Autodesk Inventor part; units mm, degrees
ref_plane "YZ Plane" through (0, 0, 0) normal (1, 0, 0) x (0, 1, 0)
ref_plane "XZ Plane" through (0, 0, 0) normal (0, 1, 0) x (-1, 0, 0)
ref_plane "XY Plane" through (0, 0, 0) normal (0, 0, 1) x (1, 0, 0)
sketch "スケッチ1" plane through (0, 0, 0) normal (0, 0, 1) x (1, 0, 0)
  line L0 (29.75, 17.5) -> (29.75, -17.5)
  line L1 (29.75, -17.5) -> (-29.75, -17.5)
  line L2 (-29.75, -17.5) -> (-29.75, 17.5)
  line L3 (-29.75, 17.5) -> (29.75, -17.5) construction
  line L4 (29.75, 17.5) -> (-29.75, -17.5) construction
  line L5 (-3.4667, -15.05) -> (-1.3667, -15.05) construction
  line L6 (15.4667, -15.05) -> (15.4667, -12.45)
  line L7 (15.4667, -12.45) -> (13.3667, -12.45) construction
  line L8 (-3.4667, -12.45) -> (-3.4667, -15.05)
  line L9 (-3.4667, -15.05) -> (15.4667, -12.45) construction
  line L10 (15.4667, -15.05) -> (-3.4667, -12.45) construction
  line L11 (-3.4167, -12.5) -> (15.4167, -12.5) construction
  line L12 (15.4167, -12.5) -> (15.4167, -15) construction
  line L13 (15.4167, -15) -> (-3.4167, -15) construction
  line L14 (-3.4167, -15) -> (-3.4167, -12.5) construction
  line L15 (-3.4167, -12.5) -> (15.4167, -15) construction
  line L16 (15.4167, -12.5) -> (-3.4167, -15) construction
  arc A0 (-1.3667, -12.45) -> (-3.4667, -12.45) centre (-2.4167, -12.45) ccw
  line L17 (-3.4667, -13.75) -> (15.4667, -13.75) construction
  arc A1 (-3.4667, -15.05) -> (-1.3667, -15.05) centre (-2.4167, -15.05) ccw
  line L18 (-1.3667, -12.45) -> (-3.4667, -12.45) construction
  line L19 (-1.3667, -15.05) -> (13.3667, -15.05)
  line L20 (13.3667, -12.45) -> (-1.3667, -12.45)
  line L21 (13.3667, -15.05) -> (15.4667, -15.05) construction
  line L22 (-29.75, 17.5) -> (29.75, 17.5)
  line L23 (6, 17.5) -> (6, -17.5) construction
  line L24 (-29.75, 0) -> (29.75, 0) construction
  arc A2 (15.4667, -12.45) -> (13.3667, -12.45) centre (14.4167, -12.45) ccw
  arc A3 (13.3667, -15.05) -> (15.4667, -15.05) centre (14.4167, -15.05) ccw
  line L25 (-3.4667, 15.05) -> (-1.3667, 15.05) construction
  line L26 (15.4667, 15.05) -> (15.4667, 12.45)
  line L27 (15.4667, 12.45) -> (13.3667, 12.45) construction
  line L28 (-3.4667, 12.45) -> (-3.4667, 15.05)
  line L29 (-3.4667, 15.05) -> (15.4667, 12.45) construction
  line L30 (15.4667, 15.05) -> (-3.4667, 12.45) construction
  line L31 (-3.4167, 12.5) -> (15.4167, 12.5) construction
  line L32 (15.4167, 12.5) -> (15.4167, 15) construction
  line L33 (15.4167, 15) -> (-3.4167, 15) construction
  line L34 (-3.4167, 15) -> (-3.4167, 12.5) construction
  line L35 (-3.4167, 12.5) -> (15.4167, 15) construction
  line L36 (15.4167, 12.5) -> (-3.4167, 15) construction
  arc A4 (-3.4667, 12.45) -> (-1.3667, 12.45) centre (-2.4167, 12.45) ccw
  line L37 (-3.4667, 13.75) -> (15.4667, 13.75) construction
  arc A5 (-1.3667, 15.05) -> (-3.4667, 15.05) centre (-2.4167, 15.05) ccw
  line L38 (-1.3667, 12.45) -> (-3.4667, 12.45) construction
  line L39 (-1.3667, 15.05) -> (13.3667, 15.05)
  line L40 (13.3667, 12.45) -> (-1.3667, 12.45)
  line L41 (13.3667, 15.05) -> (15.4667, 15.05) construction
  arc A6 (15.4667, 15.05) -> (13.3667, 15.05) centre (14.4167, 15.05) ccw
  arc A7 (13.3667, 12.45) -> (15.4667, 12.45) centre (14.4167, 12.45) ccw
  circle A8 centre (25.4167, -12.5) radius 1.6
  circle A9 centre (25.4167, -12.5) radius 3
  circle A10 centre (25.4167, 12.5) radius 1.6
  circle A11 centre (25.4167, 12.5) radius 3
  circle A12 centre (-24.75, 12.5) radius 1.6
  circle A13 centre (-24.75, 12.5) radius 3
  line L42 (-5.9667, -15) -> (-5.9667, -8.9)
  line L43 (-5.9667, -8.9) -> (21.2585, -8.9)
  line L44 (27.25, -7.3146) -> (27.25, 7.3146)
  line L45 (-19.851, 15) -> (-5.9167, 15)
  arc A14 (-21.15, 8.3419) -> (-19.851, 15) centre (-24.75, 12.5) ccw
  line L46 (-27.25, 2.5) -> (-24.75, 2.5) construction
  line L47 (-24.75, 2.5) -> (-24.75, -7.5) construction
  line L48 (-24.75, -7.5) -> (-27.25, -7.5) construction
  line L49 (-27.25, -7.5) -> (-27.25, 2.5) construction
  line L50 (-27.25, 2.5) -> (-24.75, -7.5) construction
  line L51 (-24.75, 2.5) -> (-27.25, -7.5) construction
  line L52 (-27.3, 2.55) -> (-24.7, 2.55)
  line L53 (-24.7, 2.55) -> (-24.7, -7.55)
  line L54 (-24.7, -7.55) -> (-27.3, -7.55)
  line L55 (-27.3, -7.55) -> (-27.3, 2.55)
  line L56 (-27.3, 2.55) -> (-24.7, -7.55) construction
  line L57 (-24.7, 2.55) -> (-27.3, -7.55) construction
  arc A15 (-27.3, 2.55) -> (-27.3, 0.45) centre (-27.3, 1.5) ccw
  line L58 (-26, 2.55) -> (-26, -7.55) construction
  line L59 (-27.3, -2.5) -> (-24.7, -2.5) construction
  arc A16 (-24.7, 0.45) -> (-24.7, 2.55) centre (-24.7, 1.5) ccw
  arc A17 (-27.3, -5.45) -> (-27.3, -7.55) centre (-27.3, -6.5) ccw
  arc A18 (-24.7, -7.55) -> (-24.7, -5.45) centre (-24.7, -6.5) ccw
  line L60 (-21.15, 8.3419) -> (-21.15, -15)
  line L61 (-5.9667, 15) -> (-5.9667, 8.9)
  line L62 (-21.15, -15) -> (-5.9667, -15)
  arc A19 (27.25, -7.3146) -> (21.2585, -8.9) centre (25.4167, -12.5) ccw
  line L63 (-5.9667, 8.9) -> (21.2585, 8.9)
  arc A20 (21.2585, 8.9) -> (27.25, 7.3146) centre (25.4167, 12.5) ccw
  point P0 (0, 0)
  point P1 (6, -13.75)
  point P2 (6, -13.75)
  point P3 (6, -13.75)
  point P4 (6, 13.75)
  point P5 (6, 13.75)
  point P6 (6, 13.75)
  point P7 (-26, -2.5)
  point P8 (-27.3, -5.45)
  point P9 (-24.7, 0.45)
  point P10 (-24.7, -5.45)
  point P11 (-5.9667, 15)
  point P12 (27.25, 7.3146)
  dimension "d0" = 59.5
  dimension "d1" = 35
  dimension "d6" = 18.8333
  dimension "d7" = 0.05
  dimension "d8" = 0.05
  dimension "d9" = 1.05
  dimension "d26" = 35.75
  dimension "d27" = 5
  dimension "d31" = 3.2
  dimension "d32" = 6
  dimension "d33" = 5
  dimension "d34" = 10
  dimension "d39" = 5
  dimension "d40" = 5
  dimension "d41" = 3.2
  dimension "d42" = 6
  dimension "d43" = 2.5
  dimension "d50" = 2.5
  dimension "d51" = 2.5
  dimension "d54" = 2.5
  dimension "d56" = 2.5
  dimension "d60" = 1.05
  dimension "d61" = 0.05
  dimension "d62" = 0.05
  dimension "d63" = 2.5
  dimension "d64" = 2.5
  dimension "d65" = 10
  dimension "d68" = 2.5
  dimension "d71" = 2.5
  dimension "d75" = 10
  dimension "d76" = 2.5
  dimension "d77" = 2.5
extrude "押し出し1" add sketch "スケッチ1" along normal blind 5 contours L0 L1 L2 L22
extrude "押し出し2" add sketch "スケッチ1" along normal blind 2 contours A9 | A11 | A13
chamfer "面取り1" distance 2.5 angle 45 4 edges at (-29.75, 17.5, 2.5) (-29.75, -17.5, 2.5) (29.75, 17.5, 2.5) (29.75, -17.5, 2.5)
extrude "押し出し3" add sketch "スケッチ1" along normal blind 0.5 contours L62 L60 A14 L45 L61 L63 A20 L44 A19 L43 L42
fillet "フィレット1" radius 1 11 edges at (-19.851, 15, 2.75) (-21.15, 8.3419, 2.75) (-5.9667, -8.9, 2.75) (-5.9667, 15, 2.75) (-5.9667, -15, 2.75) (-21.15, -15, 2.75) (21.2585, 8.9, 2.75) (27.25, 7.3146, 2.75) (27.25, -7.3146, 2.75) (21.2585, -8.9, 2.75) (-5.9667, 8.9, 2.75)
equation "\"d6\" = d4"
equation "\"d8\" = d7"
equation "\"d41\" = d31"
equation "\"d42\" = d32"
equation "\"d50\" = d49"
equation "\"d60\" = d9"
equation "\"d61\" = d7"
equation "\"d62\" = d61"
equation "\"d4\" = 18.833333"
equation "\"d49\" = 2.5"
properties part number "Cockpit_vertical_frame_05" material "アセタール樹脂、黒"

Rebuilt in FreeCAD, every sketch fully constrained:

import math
import FreeCAD as App
import Part
import Sketcher

V = App.Vector


def edges_at(feature, points):
    """Names of the edges that pass closest to the given points."""
    edges = feature.Shape.Edges
    near = lambda p: min(range(len(edges)), key=lambda i: edges[i].distToShape(Part.Vertex(*p))[0])
    return sorted({f"Edge{near(p) + 1}" for p in points})


def add_polygon(sketch, points):
    """Adds a closed chain of lines whose ends are joined by coincident constraints."""
    first, n = sketch.GeometryCount, len(points)
    for a, b in zip(points, points[1:] + points[:1]):
        sketch.addGeometry(Part.LineSegment(App.Vector(*a, 0), App.Vector(*b, 0)), False)
    for i in range(n):
        sketch.addConstraint(Sketcher.Constraint("Coincident", first + i, 2, first + (i + 1) % n, 1))

doc = App.newDocument("Part")
body = doc.addObject("PartDesign::Body", "Body")

# Sketch on XY plane
sketch1 = body.newObject("Sketcher::SketchObject", "Sketch")
sketch1.AttachmentSupport = (doc.getObject("XY_Plane"), [""])
sketch1.MapMode = "FlatFace"
add_polygon(sketch1, [(29.75, -17.5), (29.75, 17.5), (-29.75, 17.5), (-29.75, -17.5)])  # lines 0-3
sketch1.addGeometry(Part.ArcOfCircle(Part.Circle(V(-27.3, 1.5, 0), V(0, 0, 1), 1.05), math.radians(90), math.radians(270)), False)  # 4
sketch1.addGeometry(Part.LineSegment(V(-27.3, 2.55, 0), V(-24.7, 2.55, 0)), False)  # 5
sketch1.addGeometry(Part.ArcOfCircle(Part.Circle(V(-24.7, 1.5, 0), V(0, 0, 1), 1.05), math.radians(-90), math.radians(90)), False)  # 6
sketch1.addGeometry(Part.LineSegment(V(-24.7, 0.45, 0), V(-24.7, -5.45, 0)), False)  # 7
sketch1.addGeometry(Part.ArcOfCircle(Part.Circle(V(-24.7, -6.5, 0), V(0, 0, 1), 1.05), math.radians(-90), math.radians(90)), False)  # 8
sketch1.addGeometry(Part.LineSegment(V(-24.7, -7.55, 0), V(-27.3, -7.55, 0)), False)  # 9
sketch1.addGeometry(Part.ArcOfCircle(Part.Circle(V(-27.3, -6.5, 0), V(0, 0, 1), 1.05), math.radians(90), math.radians(270)), False)  # 10
sketch1.addGeometry(Part.LineSegment(V(-27.3, -5.45, 0), V(-27.3, 0.45, 0)), False)  # 11
sketch1.addGeometry(Part.LineSegment(V(15.4667, -12.45, 0), V(15.4667, -15.05, 0)), False)  # 12
sketch1.addGeometry(Part.ArcOfCircle(Part.Circle(V(14.4167, -15.05, 0), V(0, 0, 1), 1.05), math.radians(180), math.radians(360)), False)  # 13
sketch1.addGeometry(Part.LineSegment(V(13.3667, -15.05, 0), V(-1.3667, -15.05, 0)), False)  # 14
sketch1.addGeometry(Part.ArcOfCircle(Part.Circle(V(-2.4167, -15.05, 0), V(0, 0, 1), 1.05), math.radians(180), math.radians(360)), False)  # 15
sketch1.addGeometry(Part.LineSegment(V(-3.4667, -15.05, 0), V(-3.4667, -12.45, 0)), False)  # 16
sketch1.addGeometry(Part.ArcOfCircle(Part.Circle(V(-2.4167, -12.45, 0), V(0, 0, 1), 1.05), math.radians(0), math.radians(180)), False)  # 17
sketch1.addGeometry(Part.LineSegment(V(-1.3667, -12.45, 0), V(13.3667, -12.45, 0)), False)  # 18
sketch1.addGeometry(Part.ArcOfCircle(Part.Circle(V(14.4167, -12.45, 0), V(0, 0, 1), 1.05), math.radians(0), math.radians(180)), False)  # 19
sketch1.addGeometry(Part.Circle(V(25.4167, -12.5, 0), V(0, 0, 1), 3), False)  # 20
sketch1.addGeometry(Part.Circle(V(-24.75, 12.5, 0), V(0, 0, 1), 3), False)  # 21
sketch1.addGeometry(Part.LineSegment(V(-5.9667, -8.9, 0), V(-5.9667, -15, 0)), False)  # 22
sketch1.addGeometry(Part.LineSegment(V(-5.9667, -15, 0), V(-21.15, -15, 0)), False)  # 23
sketch1.addGeometry(Part.LineSegment(V(-21.15, -15, 0), V(-21.15, 8.3419, 0)), False)  # 24
sketch1.addGeometry(Part.ArcOfCircle(Part.Circle(V(-24.75, 12.5, 0), V(0, 0, 1), 5.499981), math.radians(-49.11464), math.radians(27.035595)), False)  # 25
sketch1.addGeometry(Part.LineSegment(V(-19.851, 15, 0), V(-5.9667, 15, 0)), False)  # 26
sketch1.addGeometry(Part.LineSegment(V(-5.9667, 15, 0), V(-5.9667, 8.9, 0)), False)  # 27
sketch1.addGeometry(Part.LineSegment(V(-5.9667, 8.9, 0), V(21.2585, 8.9, 0)), False)  # 28
sketch1.addGeometry(Part.ArcOfCircle(Part.Circle(V(25.4167, 12.5, 0), V(0, 0, 1), 5.500057), math.radians(-139.115321), math.radians(-70.528934)), False)  # 29
sketch1.addGeometry(Part.LineSegment(V(27.25, 7.3146, 0), V(27.25, -7.3146, 0)), False)  # 30
sketch1.addGeometry(Part.ArcOfCircle(Part.Circle(V(25.4167, -12.5, 0), V(0, 0, 1), 5.499942), math.radians(70.528934), math.radians(139.115321)), False)  # 31
sketch1.addGeometry(Part.LineSegment(V(21.2585, -8.9, 0), V(-5.9667, -8.9, 0)), False)  # 32
sketch1.addGeometry(Part.ArcOfCircle(Part.Circle(V(14.4167, 15.05, 0), V(0, 0, 1), 1.05), math.radians(0), math.radians(180)), False)  # 33
sketch1.addGeometry(Part.LineSegment(V(15.4667, 15.05, 0), V(15.4667, 12.45, 0)), False)  # 34
sketch1.addGeometry(Part.ArcOfCircle(Part.Circle(V(14.4167, 12.45, 0), V(0, 0, 1), 1.05), math.radians(180), math.radians(360)), False)  # 35
sketch1.addGeometry(Part.LineSegment(V(13.3667, 12.45, 0), V(-1.3667, 12.45, 0)), False)  # 36
sketch1.addGeometry(Part.ArcOfCircle(Part.Circle(V(-2.4167, 12.45, 0), V(0, 0, 1), 1.05), math.radians(180), math.radians(360)), False)  # 37
sketch1.addGeometry(Part.LineSegment(V(-3.4667, 12.45, 0), V(-3.4667, 15.05, 0)), False)  # 38
sketch1.addGeometry(Part.ArcOfCircle(Part.Circle(V(-2.4167, 15.05, 0), V(0, 0, 1), 1.05), math.radians(0), math.radians(180)), False)  # 39
sketch1.addGeometry(Part.LineSegment(V(-1.3667, 15.05, 0), V(13.3667, 15.05, 0)), False)  # 40
sketch1.addGeometry(Part.Circle(V(25.4167, 12.5, 0), V(0, 0, 1), 3), False)  # 41
sketch1.addConstraint([
    Sketcher.Constraint("Tangent", 4, 1, 5, 1),
    Sketcher.Constraint("Tangent", 5, 2, 6, 2),
    Sketcher.Constraint("Coincident", 6, 1, 7, 1),
    Sketcher.Constraint("Coincident", 7, 2, 8, 2),
    Sketcher.Constraint("Tangent", 8, 1, 9, 1),
    Sketcher.Constraint("Tangent", 9, 2, 10, 2),
    Sketcher.Constraint("Coincident", 10, 1, 11, 1),
    Sketcher.Constraint("Coincident", 11, 2, 4, 2),
    Sketcher.Constraint("Tangent", 12, 2, 13, 2),
    Sketcher.Constraint("Coincident", 13, 1, 14, 1),
    Sketcher.Constraint("Coincident", 14, 2, 15, 2),
    Sketcher.Constraint("Tangent", 15, 1, 16, 1),
    Sketcher.Constraint("Tangent", 16, 2, 17, 2),
    Sketcher.Constraint("Coincident", 17, 1, 18, 1),
    Sketcher.Constraint("Coincident", 18, 2, 19, 2),
    Sketcher.Constraint("Tangent", 19, 1, 12, 1),
    Sketcher.Constraint("Coincident", 22, 2, 23, 1),
    Sketcher.Constraint("Coincident", 23, 2, 24, 1),
    Sketcher.Constraint("Coincident", 24, 2, 25, 1),
    Sketcher.Constraint("Coincident", 25, 2, 26, 1),
    Sketcher.Constraint("Coincident", 26, 2, 27, 1),
    Sketcher.Constraint("Coincident", 27, 2, 28, 1),
    Sketcher.Constraint("Coincident", 28, 2, 29, 1),
    Sketcher.Constraint("Coincident", 29, 2, 30, 1),
    Sketcher.Constraint("Coincident", 30, 2, 31, 1),
    Sketcher.Constraint("Coincident", 31, 2, 32, 1),
    Sketcher.Constraint("Coincident", 32, 2, 22, 1),
    Sketcher.Constraint("Tangent", 33, 1, 34, 1),
    Sketcher.Constraint("Tangent", 34, 2, 35, 2),
    Sketcher.Constraint("Coincident", 35, 1, 36, 1),
    Sketcher.Constraint("Coincident", 36, 2, 37, 2),
    Sketcher.Constraint("Tangent", 37, 1, 38, 1),
    Sketcher.Constraint("Tangent", 38, 2, 39, 2),
    Sketcher.Constraint("Coincident", 39, 1, 40, 1),
    Sketcher.Constraint("Coincident", 40, 2, 33, 2),
    Sketcher.Constraint("Vertical", 0),
    Sketcher.Constraint("Horizontal", 1),
    Sketcher.Constraint("Vertical", 2),
    Sketcher.Constraint("Horizontal", 3),
    Sketcher.Constraint("Horizontal", 5),
    Sketcher.Constraint("Vertical", 7),
    Sketcher.Constraint("Horizontal", 9),
    Sketcher.Constraint("Vertical", 11),
    Sketcher.Constraint("Vertical", 12),
    Sketcher.Constraint("Horizontal", 14),
    Sketcher.Constraint("Vertical", 16),
    Sketcher.Constraint("Horizontal", 18),
    Sketcher.Constraint("Vertical", 22),
    Sketcher.Constraint("Horizontal", 23),
    Sketcher.Constraint("Vertical", 24),
    Sketcher.Constraint("Horizontal", 26),
    Sketcher.Constraint("Vertical", 27),
    Sketcher.Constraint("Horizontal", 28),
    Sketcher.Constraint("Vertical", 30),
    Sketcher.Constraint("Horizontal", 32),
    Sketcher.Constraint("Vertical", 34),
    Sketcher.Constraint("Horizontal", 36),
    Sketcher.Constraint("Vertical", 38),
    Sketcher.Constraint("Horizontal", 40),
    Sketcher.Constraint("Coincident", 25, 3, 21, 3),
    Sketcher.Constraint("Coincident", 31, 3, 20, 3),
    Sketcher.Constraint("Coincident", 41, 3, 29, 3),
    Sketcher.Constraint("Equal", 4, 6),
    Sketcher.Constraint("Equal", 6, 8),
    Sketcher.Constraint("Equal", 8, 10),
    Sketcher.Constraint("Equal", 10, 13),
    Sketcher.Constraint("Equal", 13, 15),
    Sketcher.Constraint("Equal", 15, 17),
    Sketcher.Constraint("Equal", 17, 19),
    Sketcher.Constraint("Equal", 20, 21),
    Sketcher.Constraint("Equal", 25, 29),
    Sketcher.Constraint("Equal", 29, 31),
    Sketcher.Constraint("Equal", 19, 33),
    Sketcher.Constraint("Equal", 33, 35),
    Sketcher.Constraint("Equal", 35, 37),
    Sketcher.Constraint("Equal", 37, 39),
    Sketcher.Constraint("Equal", 21, 41),
    Sketcher.Constraint("Symmetric", 0, 2, 2, 2, -1, 1),
    Sketcher.Constraint("Symmetric", 20, 3, 29, 3, -1),
    Sketcher.Constraint("Symmetric", 13, 3, 33, 3, -1),
    Sketcher.Constraint("Symmetric", 17, 3, 37, 3, -1),
    Sketcher.Constraint("Symmetric", 22, 2, 26, 2, -1),
    Sketcher.Constraint("Horizontal", 13, 3, 15, 3),
    Sketcher.Constraint("Horizontal", 17, 3, 19, 3),
    Sketcher.Constraint("Horizontal", 25, 3, 29, 3),
    Sketcher.Constraint("Horizontal", 35, 3, 37, 3),
    Sketcher.Constraint("Horizontal", 33, 3, 39, 3),
    Sketcher.Constraint("Horizontal", 12, 2, 13, 1),
    Sketcher.Constraint("Horizontal", 16, 2, 17, 1),
    Sketcher.Constraint("Horizontal", 34, 2, 35, 1),
    Sketcher.Constraint("Horizontal", 38, 2, 39, 1),
    Sketcher.Constraint("Vertical", 6, 3, 8, 3),
    Sketcher.Constraint("Vertical", 4, 3, 10, 3),
    Sketcher.Constraint("Vertical", 5, 2, 6, 1),
    Sketcher.Constraint("Vertical", 9, 2, 10, 1),
    Sketcher.Constraint("Vertical", 28, 2, 31, 2),
    Sketcher.Constraint("Equal", 9, 12),
    Sketcher.Constraint("Diameter", 20, 6.0),
    Sketcher.Constraint("DistanceY", 0, 1, 0, 2, 35.0),
    Sketcher.Constraint("Radius", 4, 1.05),
    Sketcher.Constraint("DistanceX", 1, 2, 1, 1, 59.5),
    Sketcher.Constraint("DistanceY", 20, 3, 8, 3, 6.0),
    Sketcher.Constraint("DistanceY", 29, 3, 0, 2, 5.0),
    Sketcher.Constraint("DistanceX", 1, 2, 21, 3, 5.0),
    Sketcher.Constraint("Radius", 25, 5.5),
    Sketcher.Constraint("DistanceX", 22, 2, 15, 1, 2.5),
    Sketcher.Constraint("DistanceY", 2, 2, 23, 2, 2.5),
    Sketcher.Constraint("DistanceX", 29, 2, 0, 2, 2.5),
    Sketcher.Constraint("DistanceY", 20, 3, 19, 3, 0.05),
    Sketcher.Constraint("DistanceX", 21, 3, 6, 3, 0.05),
    Sketcher.Constraint("DistanceY", 15, 1, 22, 2, 0.05),
    Sketcher.Constraint("DistanceY", 7, 2, 7, 1, 5.9),
    Sketcher.Constraint("DistanceY", 22, 2, 22, 1, 6.1),
    Sketcher.Constraint("DistanceX", 19, 3, 20, 3, 11.0),
    Sketcher.Constraint("DistanceX", 2, 2, 23, 2, 8.6),
    Sketcher.Constraint("DistanceX", 14, 2, 14, 1, 14.7334),
    Sketcher.Constraint("DistanceX", 23, 2, 23, 1, 15.1833),
])
pad1 = body.newObject("PartDesign::Pad", "Pad")
pad1.Profile = sketch1
pad1.Length = 5

# Sketch on XY plane
sketch2 = body.newObject("Sketcher::SketchObject", "Sketch001")
sketch2.AttachmentSupport = (doc.getObject("XY_Plane"), [""])
sketch2.MapMode = "FlatFace"
sketch2.addGeometry([
    Part.Circle(V(25.4167, -12.5, 0), V(0, 0, 1), 3),  # 0
    Part.Circle(V(25.4167, -12.5, 0), V(0, 0, 1), 1.6),  # 1
    Part.Circle(V(25.4167, 12.5, 0), V(0, 0, 1), 3),  # 2
    Part.Circle(V(25.4167, 12.5, 0), V(0, 0, 1), 1.6),  # 3
    Part.Circle(V(-24.75, 12.5, 0), V(0, 0, 1), 3),  # 4
    Part.Circle(V(-24.75, 12.5, 0), V(0, 0, 1), 1.6),  # 5
], False)
sketch2.addConstraint([
    Sketcher.Constraint("Coincident", 1, 3, 0, 3),
    Sketcher.Constraint("Coincident", 3, 3, 2, 3),
    Sketcher.Constraint("Coincident", 5, 3, 4, 3),
    Sketcher.Constraint("Equal", 0, 2),
    Sketcher.Constraint("Equal", 1, 3),
    Sketcher.Constraint("Equal", 2, 4),
    Sketcher.Constraint("Equal", 3, 5),
    Sketcher.Constraint("Symmetric", 0, 3, 2, 3, -1),
    Sketcher.Constraint("Horizontal", 3, 3, 4, 3),
    Sketcher.Constraint("Diameter", 0, 6.0),
    Sketcher.Constraint("Diameter", 1, 3.2),
    Sketcher.Constraint("DistanceY", 0, 3, 2, 3, 25.0),
    Sketcher.Constraint("DistanceX", 4, 3, -1, 1, 24.75),
    Sketcher.Constraint("DistanceX", -1, 1, 0, 3, 25.4167),
])
pad2 = body.newObject("PartDesign::Pad", "Pad001")
pad2.Profile = sketch2
pad2.Length = 2
doc.recompute()

chamfer = body.newObject("PartDesign::Chamfer", "Chamfer")
chamfer.Base = (pad2, edges_at(pad2, [
    (-29.75, 17.5, 2.5),
    (-29.75, -17.5, 2.5),
    (29.75, 17.5, 2.5),
    (29.75, -17.5, 2.5),
]))
chamfer.Size = 2.5

# Sketch on XY plane
sketch3 = body.newObject("Sketcher::SketchObject", "Sketch002")
sketch3.AttachmentSupport = (doc.getObject("XY_Plane"), [""])
sketch3.MapMode = "FlatFace"
sketch3.addGeometry([
    Part.LineSegment(V(-21.15, -15, 0), V(-5.9667, -15, 0)),  # 0
    Part.LineSegment(V(-5.9667, -15, 0), V(-5.9667, -8.9, 0)),  # 1
    Part.LineSegment(V(-5.9667, -8.9, 0), V(21.2585, -8.9, 0)),  # 2
    Part.ArcOfCircle(Part.Circle(V(25.4167, -12.5, 0), V(0, 0, 1), 5.499942), math.radians(70.528934), math.radians(139.115321)),  # 3
    Part.LineSegment(V(27.25, -7.3146, 0), V(27.25, 7.3146, 0)),  # 4
    Part.ArcOfCircle(Part.Circle(V(25.4167, 12.5, 0), V(0, 0, 1), 5.500057), math.radians(-139.115321), math.radians(-70.528934)),  # 5
    Part.LineSegment(V(21.2585, 8.9, 0), V(-5.9667, 8.9, 0)),  # 6
    Part.LineSegment(V(-5.9667, 8.9, 0), V(-5.9667, 15, 0)),  # 7
    Part.LineSegment(V(-5.9667, 15, 0), V(-19.851, 15, 0)),  # 8
    Part.ArcOfCircle(Part.Circle(V(-24.75, 12.5, 0), V(0, 0, 1), 5.499981), math.radians(-49.11464), math.radians(27.035595)),  # 9
    Part.LineSegment(V(-21.15, 8.3419, 0), V(-21.15, -15, 0)),  # 10
], False)
sketch3.addConstraint([
    Sketcher.Constraint("Coincident", 0, 2, 1, 1),
    Sketcher.Constraint("Coincident", 1, 2, 2, 1),
    Sketcher.Constraint("Coincident", 2, 2, 3, 2),
    Sketcher.Constraint("Coincident", 3, 1, 4, 1),
    Sketcher.Constraint("Coincident", 4, 2, 5, 2),
    Sketcher.Constraint("Coincident", 5, 1, 6, 1),
    Sketcher.Constraint("Coincident", 6, 2, 7, 1),
    Sketcher.Constraint("Coincident", 7, 2, 8, 1),
    Sketcher.Constraint("Coincident", 8, 2, 9, 2),
    Sketcher.Constraint("Coincident", 9, 1, 10, 1),
    Sketcher.Constraint("Coincident", 10, 2, 0, 1),
    Sketcher.Constraint("Horizontal", 0),
    Sketcher.Constraint("Vertical", 1),
    Sketcher.Constraint("Horizontal", 2),
    Sketcher.Constraint("Vertical", 4),
    Sketcher.Constraint("Horizontal", 6),
    Sketcher.Constraint("Vertical", 7),
    Sketcher.Constraint("Horizontal", 8),
    Sketcher.Constraint("Vertical", 10),
    Sketcher.Constraint("Equal", 3, 5),
    Sketcher.Constraint("Equal", 5, 9),
    Sketcher.Constraint("Symmetric", 3, 3, 5, 3, -1),
    Sketcher.Constraint("Symmetric", 1, 2, 6, 2, -1),
    Sketcher.Constraint("Horizontal", 5, 3, 9, 3),
    Sketcher.Constraint("Equal", 1, 7),
    Sketcher.Constraint("Radius", 3, 5.5),
    Sketcher.Constraint("DistanceY", 0, 2, 3, 3, 2.5),
    Sketcher.Constraint("DistanceY", 1, 1, 1, 2, 6.1),
    Sketcher.Constraint("DistanceY", 0, 2, -1, 1, 15.0),
    Sketcher.Constraint("DistanceX", 9, 3, 9, 1, 3.6),
    Sketcher.Constraint("DistanceX", 9, 3, -1, 1, 24.75),
    Sketcher.Constraint("DistanceX", -1, 1, 3, 1, 27.25),
    Sketcher.Constraint("DistanceX", 0, 1, 0, 2, 15.1833),
    Sketcher.Constraint("DistanceX", 2, 1, 2, 2, 27.2252),
])
pad3 = body.newObject("PartDesign::Pad", "Pad002")
pad3.Profile = sketch3
pad3.Length = 0.5
doc.recompute()

fillet = body.newObject("PartDesign::Fillet", "Fillet")
fillet.Base = (pad3, edges_at(pad3, [
    (-19.851, 15, 2.75),
    (-21.15, 8.342, 2.75),
    (-5.967, -8.9, 2.75),
    (-5.967, 15, 2.75),
    (-5.967, -15, 2.75),
    (-21.15, -15, 2.75),
    (21.259, 8.9, 2.75),
    (27.25, 7.315, 2.75),
    (27.25, -7.315, 2.75),
    (21.259, -8.9, 2.75),
    (-5.967, 8.9, 2.75),
]))
fillet.Radius = 1

doc.recompute()
